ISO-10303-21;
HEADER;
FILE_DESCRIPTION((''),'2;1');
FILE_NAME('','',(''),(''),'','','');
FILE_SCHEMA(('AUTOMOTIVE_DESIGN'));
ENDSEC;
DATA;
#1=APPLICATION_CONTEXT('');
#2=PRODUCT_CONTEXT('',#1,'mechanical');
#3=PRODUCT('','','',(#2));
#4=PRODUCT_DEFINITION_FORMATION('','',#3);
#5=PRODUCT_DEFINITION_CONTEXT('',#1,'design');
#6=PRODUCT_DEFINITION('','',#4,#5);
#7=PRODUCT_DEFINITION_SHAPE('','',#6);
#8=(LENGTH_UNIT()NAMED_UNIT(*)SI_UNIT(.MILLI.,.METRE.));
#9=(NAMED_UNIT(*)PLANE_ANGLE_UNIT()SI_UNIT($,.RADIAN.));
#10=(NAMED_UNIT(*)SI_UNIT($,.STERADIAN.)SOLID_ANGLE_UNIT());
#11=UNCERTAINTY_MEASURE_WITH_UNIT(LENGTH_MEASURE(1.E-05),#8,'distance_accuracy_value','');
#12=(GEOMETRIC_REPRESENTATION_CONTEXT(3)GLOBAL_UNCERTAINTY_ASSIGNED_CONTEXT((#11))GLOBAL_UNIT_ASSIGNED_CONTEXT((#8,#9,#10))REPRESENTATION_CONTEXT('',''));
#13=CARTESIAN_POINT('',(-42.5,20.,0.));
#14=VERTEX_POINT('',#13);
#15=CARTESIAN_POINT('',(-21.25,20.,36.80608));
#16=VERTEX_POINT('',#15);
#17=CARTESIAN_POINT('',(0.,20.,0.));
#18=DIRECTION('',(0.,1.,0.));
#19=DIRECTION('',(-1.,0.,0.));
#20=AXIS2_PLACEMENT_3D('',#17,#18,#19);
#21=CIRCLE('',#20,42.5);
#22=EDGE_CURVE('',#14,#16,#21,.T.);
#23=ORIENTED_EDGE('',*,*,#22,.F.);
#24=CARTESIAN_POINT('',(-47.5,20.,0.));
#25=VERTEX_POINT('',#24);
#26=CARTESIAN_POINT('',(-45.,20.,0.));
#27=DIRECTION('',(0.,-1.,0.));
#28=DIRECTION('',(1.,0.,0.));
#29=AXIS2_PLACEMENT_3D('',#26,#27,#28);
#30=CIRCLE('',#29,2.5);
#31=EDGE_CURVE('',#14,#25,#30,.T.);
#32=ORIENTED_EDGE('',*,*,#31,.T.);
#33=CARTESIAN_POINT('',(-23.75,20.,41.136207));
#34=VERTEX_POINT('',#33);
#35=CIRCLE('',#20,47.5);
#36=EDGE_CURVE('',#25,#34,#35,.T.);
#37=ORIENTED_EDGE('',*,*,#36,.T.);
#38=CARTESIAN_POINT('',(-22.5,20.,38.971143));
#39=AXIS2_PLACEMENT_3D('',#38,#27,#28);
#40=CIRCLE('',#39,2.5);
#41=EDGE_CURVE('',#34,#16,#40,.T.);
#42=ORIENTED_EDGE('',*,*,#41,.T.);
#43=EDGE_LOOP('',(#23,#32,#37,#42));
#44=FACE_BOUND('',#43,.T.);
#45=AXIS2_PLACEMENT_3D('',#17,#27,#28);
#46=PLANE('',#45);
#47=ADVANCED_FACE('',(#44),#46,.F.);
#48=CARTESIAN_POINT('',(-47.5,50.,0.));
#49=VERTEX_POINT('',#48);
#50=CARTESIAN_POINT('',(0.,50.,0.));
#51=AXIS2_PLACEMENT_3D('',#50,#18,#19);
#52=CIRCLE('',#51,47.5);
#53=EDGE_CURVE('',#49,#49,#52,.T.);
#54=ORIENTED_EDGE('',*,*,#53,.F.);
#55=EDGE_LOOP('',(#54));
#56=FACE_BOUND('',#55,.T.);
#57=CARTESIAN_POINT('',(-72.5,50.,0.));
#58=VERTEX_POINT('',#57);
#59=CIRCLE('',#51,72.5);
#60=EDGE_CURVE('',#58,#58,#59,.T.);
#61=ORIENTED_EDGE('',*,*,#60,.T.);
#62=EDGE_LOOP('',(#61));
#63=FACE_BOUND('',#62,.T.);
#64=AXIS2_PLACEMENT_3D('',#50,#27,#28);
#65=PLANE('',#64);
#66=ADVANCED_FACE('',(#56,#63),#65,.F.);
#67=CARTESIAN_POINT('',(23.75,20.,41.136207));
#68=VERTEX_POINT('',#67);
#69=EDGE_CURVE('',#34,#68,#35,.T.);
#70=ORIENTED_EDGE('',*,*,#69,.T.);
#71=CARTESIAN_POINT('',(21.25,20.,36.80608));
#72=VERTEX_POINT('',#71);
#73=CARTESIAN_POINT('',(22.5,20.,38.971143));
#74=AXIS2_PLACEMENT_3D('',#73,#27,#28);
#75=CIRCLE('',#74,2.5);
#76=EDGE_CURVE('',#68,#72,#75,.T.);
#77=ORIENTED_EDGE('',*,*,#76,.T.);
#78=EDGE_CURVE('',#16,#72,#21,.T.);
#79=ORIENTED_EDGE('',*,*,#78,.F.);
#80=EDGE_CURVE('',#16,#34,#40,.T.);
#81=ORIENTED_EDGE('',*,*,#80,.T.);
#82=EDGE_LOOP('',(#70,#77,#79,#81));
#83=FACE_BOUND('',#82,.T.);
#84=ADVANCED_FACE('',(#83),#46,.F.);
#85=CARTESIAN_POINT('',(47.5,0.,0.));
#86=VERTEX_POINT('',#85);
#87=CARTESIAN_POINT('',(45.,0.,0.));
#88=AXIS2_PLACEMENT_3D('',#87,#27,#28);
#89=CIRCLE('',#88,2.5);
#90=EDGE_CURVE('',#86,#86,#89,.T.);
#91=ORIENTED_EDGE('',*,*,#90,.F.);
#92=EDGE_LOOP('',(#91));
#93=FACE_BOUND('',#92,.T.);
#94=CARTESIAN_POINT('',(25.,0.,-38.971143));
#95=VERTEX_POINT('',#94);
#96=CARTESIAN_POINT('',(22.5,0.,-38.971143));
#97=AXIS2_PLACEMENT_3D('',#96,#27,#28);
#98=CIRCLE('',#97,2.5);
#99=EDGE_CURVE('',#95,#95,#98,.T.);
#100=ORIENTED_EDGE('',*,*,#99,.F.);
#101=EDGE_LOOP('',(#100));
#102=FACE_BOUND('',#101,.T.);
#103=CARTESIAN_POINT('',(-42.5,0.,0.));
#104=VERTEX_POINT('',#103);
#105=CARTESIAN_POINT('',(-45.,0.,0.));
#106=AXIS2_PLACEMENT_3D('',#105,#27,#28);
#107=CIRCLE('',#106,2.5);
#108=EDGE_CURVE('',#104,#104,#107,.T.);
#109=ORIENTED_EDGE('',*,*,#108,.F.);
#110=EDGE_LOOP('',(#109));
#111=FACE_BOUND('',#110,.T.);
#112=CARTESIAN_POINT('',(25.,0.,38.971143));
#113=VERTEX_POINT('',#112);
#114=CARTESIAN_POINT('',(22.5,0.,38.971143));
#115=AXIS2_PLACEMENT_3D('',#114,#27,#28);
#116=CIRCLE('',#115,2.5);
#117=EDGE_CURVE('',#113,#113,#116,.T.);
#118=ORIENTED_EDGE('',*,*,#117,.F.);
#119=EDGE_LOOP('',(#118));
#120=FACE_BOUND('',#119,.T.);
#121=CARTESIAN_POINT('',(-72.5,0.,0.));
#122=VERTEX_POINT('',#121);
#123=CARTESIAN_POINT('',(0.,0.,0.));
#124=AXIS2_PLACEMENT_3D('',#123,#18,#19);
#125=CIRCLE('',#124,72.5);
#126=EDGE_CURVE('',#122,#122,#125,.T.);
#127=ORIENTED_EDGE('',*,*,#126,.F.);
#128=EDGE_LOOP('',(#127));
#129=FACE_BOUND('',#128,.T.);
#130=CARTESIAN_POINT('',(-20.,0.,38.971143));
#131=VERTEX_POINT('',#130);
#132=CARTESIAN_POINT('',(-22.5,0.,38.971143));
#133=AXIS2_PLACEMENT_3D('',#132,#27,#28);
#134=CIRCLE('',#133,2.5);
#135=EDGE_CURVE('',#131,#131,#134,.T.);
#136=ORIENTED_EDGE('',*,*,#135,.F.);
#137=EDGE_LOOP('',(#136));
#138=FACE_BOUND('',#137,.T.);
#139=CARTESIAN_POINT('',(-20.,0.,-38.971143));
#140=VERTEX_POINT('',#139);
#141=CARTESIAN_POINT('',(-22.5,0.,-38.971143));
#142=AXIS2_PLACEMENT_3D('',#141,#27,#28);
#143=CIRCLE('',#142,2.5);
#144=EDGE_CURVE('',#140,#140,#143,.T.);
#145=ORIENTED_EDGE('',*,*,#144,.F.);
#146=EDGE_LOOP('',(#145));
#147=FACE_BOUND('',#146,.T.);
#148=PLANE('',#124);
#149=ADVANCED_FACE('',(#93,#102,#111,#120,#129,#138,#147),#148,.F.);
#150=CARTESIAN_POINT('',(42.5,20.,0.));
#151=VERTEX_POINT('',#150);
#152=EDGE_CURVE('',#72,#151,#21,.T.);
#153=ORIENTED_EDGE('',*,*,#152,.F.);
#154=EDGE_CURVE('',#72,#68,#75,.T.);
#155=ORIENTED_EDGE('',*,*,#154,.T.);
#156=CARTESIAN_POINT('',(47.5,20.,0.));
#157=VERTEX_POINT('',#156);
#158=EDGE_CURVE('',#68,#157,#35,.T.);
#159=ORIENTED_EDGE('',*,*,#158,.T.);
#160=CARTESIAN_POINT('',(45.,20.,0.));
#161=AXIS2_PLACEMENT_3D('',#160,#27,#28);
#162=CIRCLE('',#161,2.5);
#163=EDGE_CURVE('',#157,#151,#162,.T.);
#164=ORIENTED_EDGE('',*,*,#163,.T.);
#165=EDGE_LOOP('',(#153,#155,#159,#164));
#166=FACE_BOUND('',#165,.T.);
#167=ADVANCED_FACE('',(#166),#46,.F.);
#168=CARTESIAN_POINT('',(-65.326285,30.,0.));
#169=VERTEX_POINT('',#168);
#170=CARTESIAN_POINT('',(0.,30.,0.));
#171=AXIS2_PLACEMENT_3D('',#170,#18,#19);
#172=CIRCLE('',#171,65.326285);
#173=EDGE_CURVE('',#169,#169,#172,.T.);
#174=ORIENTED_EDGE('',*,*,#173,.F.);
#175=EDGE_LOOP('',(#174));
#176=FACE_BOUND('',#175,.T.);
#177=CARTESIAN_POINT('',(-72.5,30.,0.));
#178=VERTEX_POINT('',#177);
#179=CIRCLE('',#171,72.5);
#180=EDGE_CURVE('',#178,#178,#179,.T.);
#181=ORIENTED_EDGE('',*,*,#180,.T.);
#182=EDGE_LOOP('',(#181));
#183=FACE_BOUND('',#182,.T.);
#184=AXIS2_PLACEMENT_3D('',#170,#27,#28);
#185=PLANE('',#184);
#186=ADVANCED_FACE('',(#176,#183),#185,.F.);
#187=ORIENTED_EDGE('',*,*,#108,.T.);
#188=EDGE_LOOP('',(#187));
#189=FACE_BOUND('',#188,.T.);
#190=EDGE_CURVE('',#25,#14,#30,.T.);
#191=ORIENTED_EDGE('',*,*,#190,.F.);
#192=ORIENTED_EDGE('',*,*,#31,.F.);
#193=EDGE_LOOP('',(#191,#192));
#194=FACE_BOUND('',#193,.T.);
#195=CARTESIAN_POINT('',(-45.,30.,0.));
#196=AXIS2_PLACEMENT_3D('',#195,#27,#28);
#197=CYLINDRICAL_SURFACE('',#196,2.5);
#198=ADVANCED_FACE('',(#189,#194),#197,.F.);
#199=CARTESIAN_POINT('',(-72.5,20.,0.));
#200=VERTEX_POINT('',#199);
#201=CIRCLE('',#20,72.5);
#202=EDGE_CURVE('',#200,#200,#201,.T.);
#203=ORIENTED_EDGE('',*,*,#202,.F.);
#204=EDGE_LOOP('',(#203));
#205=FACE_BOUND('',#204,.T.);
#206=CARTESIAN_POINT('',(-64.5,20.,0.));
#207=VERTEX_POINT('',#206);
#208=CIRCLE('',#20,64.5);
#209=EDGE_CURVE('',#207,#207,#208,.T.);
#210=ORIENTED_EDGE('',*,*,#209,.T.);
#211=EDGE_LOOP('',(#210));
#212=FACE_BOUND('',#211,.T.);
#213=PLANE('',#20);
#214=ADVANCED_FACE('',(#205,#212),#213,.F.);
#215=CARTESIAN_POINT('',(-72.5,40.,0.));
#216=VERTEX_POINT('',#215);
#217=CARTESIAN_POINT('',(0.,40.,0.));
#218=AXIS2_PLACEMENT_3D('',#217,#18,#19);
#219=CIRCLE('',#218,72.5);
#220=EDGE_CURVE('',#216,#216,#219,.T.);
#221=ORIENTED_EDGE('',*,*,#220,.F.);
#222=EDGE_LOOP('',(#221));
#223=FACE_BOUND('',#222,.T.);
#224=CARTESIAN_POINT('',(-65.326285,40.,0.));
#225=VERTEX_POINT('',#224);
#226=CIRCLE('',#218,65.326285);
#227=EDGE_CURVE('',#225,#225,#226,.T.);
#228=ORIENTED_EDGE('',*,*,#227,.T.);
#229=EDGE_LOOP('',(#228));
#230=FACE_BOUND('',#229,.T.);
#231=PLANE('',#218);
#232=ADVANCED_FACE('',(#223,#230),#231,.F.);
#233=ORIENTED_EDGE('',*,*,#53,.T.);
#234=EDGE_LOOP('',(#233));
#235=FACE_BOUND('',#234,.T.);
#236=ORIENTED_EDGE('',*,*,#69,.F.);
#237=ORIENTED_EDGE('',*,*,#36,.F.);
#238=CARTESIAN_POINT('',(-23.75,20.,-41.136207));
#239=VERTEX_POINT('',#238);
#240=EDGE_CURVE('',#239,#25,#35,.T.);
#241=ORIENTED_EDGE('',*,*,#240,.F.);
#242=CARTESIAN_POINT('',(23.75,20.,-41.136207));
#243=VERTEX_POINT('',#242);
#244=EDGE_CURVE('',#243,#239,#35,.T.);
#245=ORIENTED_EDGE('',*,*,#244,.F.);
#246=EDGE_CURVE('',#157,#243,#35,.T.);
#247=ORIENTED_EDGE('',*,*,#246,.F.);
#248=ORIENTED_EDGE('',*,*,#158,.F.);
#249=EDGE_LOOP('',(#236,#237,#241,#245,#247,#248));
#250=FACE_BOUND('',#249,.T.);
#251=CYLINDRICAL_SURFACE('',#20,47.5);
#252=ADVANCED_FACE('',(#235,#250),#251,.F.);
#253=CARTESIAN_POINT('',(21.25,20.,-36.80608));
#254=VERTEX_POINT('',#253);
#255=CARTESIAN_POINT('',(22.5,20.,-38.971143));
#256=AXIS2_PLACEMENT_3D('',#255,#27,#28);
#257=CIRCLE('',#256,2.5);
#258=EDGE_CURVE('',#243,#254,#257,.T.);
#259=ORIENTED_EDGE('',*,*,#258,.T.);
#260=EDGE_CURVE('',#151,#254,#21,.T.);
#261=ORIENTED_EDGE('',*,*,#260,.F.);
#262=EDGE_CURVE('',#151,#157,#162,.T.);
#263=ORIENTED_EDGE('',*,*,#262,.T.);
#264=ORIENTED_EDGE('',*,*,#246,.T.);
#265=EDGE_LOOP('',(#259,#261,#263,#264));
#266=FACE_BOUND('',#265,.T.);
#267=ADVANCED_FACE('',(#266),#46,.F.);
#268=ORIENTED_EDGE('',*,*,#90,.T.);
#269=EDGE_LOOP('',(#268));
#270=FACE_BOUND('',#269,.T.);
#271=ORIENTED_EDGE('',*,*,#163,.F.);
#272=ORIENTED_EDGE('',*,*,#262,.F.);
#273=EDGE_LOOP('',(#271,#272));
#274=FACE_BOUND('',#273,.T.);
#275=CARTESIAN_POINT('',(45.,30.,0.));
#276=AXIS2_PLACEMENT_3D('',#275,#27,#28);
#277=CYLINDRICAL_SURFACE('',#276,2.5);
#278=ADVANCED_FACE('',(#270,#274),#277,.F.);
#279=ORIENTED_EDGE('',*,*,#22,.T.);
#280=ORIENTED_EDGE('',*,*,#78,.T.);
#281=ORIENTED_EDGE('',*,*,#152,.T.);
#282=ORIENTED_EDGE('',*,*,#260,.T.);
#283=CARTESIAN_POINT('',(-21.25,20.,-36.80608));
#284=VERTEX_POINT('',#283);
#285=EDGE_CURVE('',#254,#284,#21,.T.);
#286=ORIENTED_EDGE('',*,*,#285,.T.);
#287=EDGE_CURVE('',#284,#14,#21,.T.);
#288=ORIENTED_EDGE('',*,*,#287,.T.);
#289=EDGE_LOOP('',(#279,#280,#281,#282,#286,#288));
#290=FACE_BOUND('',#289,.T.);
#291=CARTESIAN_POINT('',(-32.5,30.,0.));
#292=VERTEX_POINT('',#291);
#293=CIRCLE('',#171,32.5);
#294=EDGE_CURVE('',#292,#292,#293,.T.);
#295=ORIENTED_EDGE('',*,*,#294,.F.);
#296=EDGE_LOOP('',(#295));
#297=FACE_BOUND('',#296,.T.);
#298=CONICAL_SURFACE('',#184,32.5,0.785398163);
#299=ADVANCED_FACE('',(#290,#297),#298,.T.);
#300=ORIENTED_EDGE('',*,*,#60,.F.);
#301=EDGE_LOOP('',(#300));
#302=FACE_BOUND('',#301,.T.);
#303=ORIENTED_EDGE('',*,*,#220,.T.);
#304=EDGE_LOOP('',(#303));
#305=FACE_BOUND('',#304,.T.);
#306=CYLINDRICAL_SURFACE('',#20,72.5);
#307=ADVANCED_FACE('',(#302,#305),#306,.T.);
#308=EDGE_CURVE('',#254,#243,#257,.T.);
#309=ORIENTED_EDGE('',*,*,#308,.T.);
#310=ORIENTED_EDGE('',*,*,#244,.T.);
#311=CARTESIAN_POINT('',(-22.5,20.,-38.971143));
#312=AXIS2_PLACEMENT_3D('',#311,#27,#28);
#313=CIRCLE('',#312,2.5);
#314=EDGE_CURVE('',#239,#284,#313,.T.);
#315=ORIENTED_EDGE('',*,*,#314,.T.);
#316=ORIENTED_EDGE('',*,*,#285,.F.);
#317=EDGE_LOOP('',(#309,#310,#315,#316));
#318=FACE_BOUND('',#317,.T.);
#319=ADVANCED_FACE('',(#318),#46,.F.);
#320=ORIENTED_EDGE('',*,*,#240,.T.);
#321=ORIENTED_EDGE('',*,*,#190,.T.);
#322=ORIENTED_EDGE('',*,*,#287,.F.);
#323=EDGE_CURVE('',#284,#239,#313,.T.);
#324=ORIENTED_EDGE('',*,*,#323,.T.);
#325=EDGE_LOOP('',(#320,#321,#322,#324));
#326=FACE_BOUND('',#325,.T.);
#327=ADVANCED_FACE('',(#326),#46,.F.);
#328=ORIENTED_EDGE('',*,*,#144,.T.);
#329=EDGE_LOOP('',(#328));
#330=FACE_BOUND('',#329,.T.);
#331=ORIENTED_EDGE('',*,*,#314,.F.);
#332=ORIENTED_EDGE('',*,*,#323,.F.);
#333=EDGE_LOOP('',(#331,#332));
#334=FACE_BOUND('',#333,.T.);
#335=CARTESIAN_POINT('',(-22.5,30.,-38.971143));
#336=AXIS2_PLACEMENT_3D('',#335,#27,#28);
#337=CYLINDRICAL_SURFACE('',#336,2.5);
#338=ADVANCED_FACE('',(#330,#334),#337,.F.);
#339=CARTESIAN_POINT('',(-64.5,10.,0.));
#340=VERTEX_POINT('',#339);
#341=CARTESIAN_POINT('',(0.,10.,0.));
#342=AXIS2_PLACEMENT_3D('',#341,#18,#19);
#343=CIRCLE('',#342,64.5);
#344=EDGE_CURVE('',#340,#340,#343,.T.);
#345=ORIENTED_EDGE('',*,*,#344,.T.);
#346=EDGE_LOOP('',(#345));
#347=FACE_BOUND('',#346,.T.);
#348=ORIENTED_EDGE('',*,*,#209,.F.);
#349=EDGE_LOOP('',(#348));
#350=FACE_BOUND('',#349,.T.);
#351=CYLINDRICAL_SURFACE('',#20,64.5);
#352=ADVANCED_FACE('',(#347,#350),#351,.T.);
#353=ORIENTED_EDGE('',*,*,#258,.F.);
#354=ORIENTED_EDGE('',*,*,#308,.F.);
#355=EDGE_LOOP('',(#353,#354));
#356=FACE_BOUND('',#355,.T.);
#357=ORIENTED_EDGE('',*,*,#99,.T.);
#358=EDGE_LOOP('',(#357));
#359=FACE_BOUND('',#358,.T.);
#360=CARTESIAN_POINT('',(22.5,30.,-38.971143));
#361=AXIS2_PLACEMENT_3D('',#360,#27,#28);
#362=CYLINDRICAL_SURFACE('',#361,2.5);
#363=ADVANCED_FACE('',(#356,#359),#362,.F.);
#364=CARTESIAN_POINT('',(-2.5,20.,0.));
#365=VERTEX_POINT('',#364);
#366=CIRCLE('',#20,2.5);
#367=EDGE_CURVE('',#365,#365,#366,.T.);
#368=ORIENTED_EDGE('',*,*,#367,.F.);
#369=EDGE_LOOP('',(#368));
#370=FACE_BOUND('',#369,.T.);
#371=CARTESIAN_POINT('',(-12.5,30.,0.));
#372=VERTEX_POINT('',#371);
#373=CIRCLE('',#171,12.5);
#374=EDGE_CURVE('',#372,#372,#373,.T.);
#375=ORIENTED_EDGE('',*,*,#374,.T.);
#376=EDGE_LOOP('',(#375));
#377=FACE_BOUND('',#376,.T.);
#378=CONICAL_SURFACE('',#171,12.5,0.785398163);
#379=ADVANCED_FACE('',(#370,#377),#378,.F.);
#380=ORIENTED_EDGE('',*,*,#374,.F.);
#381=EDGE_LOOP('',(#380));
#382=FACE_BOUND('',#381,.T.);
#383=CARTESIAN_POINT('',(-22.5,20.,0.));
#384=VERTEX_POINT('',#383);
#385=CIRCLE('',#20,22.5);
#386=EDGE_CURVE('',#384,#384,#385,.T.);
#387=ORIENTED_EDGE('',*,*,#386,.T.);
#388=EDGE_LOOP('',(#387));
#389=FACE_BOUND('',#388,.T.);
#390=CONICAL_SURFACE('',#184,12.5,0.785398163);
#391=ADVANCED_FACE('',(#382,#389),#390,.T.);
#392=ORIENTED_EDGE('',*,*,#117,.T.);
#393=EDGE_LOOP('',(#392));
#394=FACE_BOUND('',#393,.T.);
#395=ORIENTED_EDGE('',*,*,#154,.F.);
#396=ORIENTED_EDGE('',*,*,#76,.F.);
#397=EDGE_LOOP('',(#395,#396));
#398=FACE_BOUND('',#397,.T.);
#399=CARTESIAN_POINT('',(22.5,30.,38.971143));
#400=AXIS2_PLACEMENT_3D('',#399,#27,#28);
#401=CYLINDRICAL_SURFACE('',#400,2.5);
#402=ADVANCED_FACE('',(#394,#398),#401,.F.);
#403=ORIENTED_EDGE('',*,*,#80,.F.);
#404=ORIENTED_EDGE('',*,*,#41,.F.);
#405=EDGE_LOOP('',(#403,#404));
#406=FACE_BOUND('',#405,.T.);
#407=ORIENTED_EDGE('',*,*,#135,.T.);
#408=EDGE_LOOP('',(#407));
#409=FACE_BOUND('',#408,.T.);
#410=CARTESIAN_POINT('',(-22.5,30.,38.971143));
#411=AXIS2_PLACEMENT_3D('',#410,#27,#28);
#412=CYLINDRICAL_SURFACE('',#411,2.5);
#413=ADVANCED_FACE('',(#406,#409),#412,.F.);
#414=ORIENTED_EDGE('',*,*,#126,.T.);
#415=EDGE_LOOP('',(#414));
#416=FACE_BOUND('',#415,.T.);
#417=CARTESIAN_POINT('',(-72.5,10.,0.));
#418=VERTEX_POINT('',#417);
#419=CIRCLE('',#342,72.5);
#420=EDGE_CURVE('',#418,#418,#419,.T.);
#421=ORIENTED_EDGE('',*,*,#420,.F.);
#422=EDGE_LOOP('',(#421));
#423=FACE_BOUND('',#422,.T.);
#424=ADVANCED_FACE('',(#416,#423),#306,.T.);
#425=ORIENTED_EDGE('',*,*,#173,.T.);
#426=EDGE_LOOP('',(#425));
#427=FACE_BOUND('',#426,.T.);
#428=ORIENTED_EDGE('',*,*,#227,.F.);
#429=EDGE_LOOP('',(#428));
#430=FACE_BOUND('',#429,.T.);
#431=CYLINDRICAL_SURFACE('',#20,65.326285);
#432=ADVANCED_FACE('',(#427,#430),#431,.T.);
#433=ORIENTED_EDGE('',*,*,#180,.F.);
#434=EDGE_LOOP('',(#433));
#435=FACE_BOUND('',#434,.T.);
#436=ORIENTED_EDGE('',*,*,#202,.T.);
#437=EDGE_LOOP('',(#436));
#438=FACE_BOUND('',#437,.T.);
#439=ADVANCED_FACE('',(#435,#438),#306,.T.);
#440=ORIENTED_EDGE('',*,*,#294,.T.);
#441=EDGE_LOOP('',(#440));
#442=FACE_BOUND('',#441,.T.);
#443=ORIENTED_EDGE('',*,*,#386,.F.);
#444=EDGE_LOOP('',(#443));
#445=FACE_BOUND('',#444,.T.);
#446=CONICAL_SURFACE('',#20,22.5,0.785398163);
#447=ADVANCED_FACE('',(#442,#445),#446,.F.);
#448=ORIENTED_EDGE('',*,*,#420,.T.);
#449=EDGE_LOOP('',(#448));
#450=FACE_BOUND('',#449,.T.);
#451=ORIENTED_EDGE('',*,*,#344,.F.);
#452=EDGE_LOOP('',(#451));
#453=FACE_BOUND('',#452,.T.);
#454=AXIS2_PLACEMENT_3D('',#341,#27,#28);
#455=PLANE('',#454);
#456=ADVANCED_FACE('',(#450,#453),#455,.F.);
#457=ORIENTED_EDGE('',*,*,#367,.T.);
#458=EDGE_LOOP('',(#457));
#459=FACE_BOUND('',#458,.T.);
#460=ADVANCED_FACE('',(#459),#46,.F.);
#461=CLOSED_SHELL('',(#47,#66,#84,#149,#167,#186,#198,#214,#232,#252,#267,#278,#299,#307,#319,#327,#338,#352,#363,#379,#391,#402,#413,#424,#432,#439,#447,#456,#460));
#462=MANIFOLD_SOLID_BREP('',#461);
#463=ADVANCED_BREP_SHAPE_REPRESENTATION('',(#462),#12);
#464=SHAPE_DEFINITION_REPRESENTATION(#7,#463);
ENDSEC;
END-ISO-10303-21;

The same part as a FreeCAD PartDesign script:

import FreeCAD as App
import Part
import Sketcher
Q = App.Units.Quantity


def add_polygon(sketch, points):
    """Adds a closed chain of lines whose ends are joined by coincident constraints."""
    first, n = sketch.GeometryCount, len(points)
    for a, b in zip(points, points[1:] + points[:1]):
        sketch.addGeometry(Part.LineSegment(App.Vector(*a, 0), App.Vector(*b, 0)), False)
    for i in range(n):
        sketch.addConstraint(Sketcher.Constraint("Coincident", first + i, 2, first + (i + 1) % n, 1))

doc = App.newDocument("Part")
body = doc.addObject("PartDesign::Body", "Body")

sketch1 = body.newObject("Sketcher::SketchObject", "Sketch")
sketch1.AttachmentSupport = (doc.getObject("XY_Plane"), [""])
sketch1.MapMode = "FlatFace"
add_polygon(sketch1, [(-72.5, 0), (0, 0), (0, 20), (-2.5, 20), (-12.5, 30), (-22.5, 20), (-32.5, 30), (-42.5, 20), (-47.5, 20), (-47.5, 50), (-72.5, 50), (-72.5, 40), (-65.3, 40), (-65.3, 30), (-72.5, 30), (-72.5, 20), (-64.5, 20), (-64.5, 10), (-72.5, 10)])
sketch1.addConstraint(Sketcher.Constraint("Horizontal", 0))
sketch1.addConstraint(Sketcher.Constraint("Vertical", 1))
sketch1.addConstraint(Sketcher.Constraint("Horizontal", 2))
sketch1.addConstraint(Sketcher.Constraint("Horizontal", 7))
sketch1.addConstraint(Sketcher.Constraint("Vertical", 8))
sketch1.addConstraint(Sketcher.Constraint("Horizontal", 9))
sketch1.addConstraint(Sketcher.Constraint("Vertical", 10))
sketch1.addConstraint(Sketcher.Constraint("Horizontal", 11))
sketch1.addConstraint(Sketcher.Constraint("Vertical", 12))
sketch1.addConstraint(Sketcher.Constraint("Horizontal", 13))
sketch1.addConstraint(Sketcher.Constraint("Vertical", 14))
sketch1.addConstraint(Sketcher.Constraint("Horizontal", 15))
sketch1.addConstraint(Sketcher.Constraint("Vertical", 16))
sketch1.addConstraint(Sketcher.Constraint("Horizontal", 17))
sketch1.addConstraint(Sketcher.Constraint("Vertical", 18))
sketch1.addConstraint(Sketcher.Constraint("Coincident", 0, 2, -1, 1))
sketch1.addConstraint(Sketcher.Constraint("Perpendicular", 3, 4))
sketch1.addConstraint(Sketcher.Constraint("Perpendicular", 4, 5))
sketch1.addConstraint(Sketcher.Constraint("Perpendicular", 5, 6))
sketch1.addConstraint(Sketcher.Constraint("Horizontal", 2, 2, 4, 2))
sketch1.addConstraint(Sketcher.Constraint("Horizontal", 3, 2, 5, 2))
sketch1.addConstraint(Sketcher.Constraint("Horizontal", 4, 2, 6, 2))
sketch1.addConstraint(Sketcher.Constraint("Horizontal", 5, 2, 12, 2))
sketch1.addConstraint(Sketcher.Constraint("Horizontal", 7, 2, 14, 2))
sketch1.addConstraint(Sketcher.Constraint("Vertical", 10, 2, 13, 2))
sketch1.addConstraint(Sketcher.Constraint("Vertical", 14, 2, 17, 2))
sketch1.addConstraint(Sketcher.Constraint("Equal", 10, 12))
sketch1.addConstraint(Sketcher.Constraint("Equal", 12, 14))
sketch1.addConstraint(Sketcher.Constraint("Equal", 14, 16))
sketch1.addConstraint(Sketcher.Constraint("Equal", 16, 18))
sketch1.addConstraint(Sketcher.Constraint("Equal", 3, 4))
sketch1.addConstraint(Sketcher.Constraint("DistanceX", 7, 2, 7, 1, Q("5 mm")))
sketch1.addConstraint(Sketcher.Constraint("DistanceX", 9, 2, 9, 1, Q("25 mm")))
sketch1.addConstraint(Sketcher.Constraint("DistanceX", 15, 1, 15, 2, Q("8 mm")))
sketch1.addConstraint(Sketcher.Constraint("DistanceY", 1, 1, 1, 2, Q("20 mm")))
sketch1.addConstraint(Sketcher.Constraint("DistanceX", 0, 1, 0, 2, Q("72.5 mm")))
sketch1.addConstraint(Sketcher.Constraint("DistanceX", 11, 1, 11, 2, Q("7.173715 mm")))
revolution = body.newObject("PartDesign::Revolution", "Revolution")
revolution.Profile = sketch1
revolution.ReferenceAxis = (sketch1, ["V_Axis"])
revolution.Angle = 360

sketch2 = body.newObject("Sketcher::SketchObject", "Sketch001")
sketch2.AttachmentSupport = (doc.getObject("XZ_Plane"), [""])
sketch2.MapMode = "FlatFace"
sketch2.addGeometry(Part.Circle(App.Vector(-45, 0, 0), App.Vector(0, 0, 1), 2.5), False)
sketch2.addGeometry(Part.Circle(App.Vector(-22.5, -39, 0), App.Vector(0, 0, 1), 2.5), False)
sketch2.addGeometry(Part.Circle(App.Vector(-22.5, 39, 0), App.Vector(0, 0, 1), 2.5), False)
sketch2.addGeometry(Part.Circle(App.Vector(22.5, 39, 0), App.Vector(0, 0, 1), 2.5), False)
sketch2.addGeometry(Part.Circle(App.Vector(45, 0, 0), App.Vector(0, 0, 1), 2.5), False)
sketch2.addGeometry(Part.Circle(App.Vector(22.5, -39, 0), App.Vector(0, 0, 1), 2.5), False)
sketch2.addConstraint(Sketcher.Constraint("Equal", 0, 1))
sketch2.addConstraint(Sketcher.Constraint("Equal", 1, 2))
sketch2.addConstraint(Sketcher.Constraint("Equal", 2, 3))
sketch2.addConstraint(Sketcher.Constraint("Equal", 3, 4))
sketch2.addConstraint(Sketcher.Constraint("Equal", 4, 5))
sketch2.addConstraint(Sketcher.Constraint("Symmetric", 1, 3, 3, 3, -1, 1))
sketch2.addConstraint(Sketcher.Constraint("Symmetric", 0, 3, 4, 3, -1, 1))
sketch2.addConstraint(Sketcher.Constraint("Symmetric", 2, 3, 5, 3, -1, 1))
sketch2.addConstraint(Sketcher.Constraint("Symmetric", 2, 3, 3, 3, -2))
sketch2.addConstraint(Sketcher.Constraint("PointOnObject", 0, 3, -1))
sketch2.addConstraint(Sketcher.Constraint("Diameter", 0, Q("5 mm")))
sketch2.addConstraint(Sketcher.Constraint("DistanceX", 0, 3, -1, 1, Q("45 mm")))
sketch2.addConstraint(Sketcher.Constraint("DistanceX", 2, 3, 3, 3, Q("45 mm")))
sketch2.addConstraint(Sketcher.Constraint("DistanceY", 1, 3, -1, 1, Q("38.971143 mm")))
pocket1 = body.newObject("PartDesign::Pocket", "Pocket")
pocket1.Profile = sketch2
pocket1.Length = 30

doc.recompute()
